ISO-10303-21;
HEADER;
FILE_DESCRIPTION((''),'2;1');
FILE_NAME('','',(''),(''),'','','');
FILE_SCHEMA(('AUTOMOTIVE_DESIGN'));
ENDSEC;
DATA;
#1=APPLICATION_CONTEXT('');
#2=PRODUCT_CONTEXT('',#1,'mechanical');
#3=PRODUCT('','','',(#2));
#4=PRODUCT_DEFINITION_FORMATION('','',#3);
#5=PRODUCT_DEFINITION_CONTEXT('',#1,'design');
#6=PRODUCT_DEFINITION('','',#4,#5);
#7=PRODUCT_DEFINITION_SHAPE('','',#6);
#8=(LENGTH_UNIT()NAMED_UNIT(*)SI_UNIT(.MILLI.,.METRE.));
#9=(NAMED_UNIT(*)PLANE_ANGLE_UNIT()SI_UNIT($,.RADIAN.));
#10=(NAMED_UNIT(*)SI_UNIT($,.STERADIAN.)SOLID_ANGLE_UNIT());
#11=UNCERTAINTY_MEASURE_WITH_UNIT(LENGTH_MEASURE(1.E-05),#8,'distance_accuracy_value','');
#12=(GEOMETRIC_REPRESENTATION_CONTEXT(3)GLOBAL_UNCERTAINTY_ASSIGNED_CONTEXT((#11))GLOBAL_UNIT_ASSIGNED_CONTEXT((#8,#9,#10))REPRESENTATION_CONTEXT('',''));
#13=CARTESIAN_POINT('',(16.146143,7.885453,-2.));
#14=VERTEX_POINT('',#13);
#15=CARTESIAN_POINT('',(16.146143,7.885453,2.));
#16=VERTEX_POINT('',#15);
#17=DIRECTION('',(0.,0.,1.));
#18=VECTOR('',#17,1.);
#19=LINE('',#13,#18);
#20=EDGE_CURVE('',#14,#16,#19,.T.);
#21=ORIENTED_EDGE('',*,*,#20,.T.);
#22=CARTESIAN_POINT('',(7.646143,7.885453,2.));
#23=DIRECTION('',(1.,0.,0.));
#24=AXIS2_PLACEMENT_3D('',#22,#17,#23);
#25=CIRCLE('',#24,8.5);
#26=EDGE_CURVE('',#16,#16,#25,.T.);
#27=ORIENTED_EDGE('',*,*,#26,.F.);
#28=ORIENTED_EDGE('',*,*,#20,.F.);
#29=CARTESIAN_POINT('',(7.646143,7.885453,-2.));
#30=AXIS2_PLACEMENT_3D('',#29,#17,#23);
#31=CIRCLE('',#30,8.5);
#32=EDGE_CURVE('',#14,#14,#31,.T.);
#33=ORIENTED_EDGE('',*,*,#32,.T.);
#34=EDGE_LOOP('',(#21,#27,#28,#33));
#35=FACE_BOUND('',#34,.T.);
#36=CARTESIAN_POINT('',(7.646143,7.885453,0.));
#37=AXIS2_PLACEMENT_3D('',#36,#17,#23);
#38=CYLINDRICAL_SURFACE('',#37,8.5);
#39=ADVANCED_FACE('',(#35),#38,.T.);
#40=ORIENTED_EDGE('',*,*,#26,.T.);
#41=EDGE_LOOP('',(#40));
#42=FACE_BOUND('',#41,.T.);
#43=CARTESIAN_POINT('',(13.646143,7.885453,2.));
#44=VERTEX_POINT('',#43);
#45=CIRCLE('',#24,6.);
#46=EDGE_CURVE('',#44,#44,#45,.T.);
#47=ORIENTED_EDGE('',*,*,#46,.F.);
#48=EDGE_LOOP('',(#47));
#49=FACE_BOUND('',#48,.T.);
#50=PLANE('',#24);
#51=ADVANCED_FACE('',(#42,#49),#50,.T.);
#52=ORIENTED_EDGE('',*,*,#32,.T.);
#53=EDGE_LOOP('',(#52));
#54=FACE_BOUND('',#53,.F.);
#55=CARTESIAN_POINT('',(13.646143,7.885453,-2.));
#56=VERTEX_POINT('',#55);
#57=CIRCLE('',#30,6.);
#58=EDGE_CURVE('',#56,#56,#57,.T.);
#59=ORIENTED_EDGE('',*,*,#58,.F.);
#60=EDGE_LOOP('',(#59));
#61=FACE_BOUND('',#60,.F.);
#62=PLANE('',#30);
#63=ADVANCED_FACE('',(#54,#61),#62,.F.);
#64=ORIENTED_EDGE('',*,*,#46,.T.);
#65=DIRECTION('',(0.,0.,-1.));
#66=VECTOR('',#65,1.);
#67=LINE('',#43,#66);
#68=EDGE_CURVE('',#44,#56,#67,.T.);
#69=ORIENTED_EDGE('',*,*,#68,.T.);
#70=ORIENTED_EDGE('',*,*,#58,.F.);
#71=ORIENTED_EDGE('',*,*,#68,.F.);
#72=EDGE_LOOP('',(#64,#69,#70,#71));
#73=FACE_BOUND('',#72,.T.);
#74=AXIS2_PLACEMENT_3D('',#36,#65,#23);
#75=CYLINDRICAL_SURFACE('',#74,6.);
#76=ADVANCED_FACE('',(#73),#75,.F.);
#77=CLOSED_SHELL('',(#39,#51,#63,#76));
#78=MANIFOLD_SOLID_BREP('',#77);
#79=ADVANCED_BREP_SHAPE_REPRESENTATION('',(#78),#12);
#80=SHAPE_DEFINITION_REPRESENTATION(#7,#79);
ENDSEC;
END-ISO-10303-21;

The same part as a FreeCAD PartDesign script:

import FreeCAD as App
import Part
import Sketcher
from FreeCAD import Vector
Q = App.Units.Quantity

doc = App.newDocument("Part")
body = doc.addObject("PartDesign::Body", "Body")

# Sketch on XY plane
sketch1 = body.newObject("Sketcher::SketchObject", "Sketch")
sketch1.AttachmentSupport = (doc.getObject("XY_Plane"), [""])
sketch1.MapMode = "FlatFace"
sketch1.addGeometry([
    Part.Circle(Vector(8, 8, 0), Vector(0, 0, 1), 8),
    Part.Circle(Vector(8, 8, 0), Vector(0, 0, 1), 6),
], False)
sketch1.addConstraint([
    Sketcher.Constraint("Coincident", 1, 3, 0, 3),
    Sketcher.Constraint("Diameter", 0, Q("17 mm")),
    Sketcher.Constraint("Diameter", 1, Q("12 mm")),
    Sketcher.Constraint("DistanceX", -1, 1, 0, 3, Q("7.646143 mm")),
    Sketcher.Constraint("DistanceY", -1, 1, 0, 3, Q("7.885453 mm")),
])
pad1 = body.newObject("PartDesign::Pad", "Pad")
pad1.Profile = sketch1
pad1.Length = 4
pad1.Midplane = True

doc.recompute()
